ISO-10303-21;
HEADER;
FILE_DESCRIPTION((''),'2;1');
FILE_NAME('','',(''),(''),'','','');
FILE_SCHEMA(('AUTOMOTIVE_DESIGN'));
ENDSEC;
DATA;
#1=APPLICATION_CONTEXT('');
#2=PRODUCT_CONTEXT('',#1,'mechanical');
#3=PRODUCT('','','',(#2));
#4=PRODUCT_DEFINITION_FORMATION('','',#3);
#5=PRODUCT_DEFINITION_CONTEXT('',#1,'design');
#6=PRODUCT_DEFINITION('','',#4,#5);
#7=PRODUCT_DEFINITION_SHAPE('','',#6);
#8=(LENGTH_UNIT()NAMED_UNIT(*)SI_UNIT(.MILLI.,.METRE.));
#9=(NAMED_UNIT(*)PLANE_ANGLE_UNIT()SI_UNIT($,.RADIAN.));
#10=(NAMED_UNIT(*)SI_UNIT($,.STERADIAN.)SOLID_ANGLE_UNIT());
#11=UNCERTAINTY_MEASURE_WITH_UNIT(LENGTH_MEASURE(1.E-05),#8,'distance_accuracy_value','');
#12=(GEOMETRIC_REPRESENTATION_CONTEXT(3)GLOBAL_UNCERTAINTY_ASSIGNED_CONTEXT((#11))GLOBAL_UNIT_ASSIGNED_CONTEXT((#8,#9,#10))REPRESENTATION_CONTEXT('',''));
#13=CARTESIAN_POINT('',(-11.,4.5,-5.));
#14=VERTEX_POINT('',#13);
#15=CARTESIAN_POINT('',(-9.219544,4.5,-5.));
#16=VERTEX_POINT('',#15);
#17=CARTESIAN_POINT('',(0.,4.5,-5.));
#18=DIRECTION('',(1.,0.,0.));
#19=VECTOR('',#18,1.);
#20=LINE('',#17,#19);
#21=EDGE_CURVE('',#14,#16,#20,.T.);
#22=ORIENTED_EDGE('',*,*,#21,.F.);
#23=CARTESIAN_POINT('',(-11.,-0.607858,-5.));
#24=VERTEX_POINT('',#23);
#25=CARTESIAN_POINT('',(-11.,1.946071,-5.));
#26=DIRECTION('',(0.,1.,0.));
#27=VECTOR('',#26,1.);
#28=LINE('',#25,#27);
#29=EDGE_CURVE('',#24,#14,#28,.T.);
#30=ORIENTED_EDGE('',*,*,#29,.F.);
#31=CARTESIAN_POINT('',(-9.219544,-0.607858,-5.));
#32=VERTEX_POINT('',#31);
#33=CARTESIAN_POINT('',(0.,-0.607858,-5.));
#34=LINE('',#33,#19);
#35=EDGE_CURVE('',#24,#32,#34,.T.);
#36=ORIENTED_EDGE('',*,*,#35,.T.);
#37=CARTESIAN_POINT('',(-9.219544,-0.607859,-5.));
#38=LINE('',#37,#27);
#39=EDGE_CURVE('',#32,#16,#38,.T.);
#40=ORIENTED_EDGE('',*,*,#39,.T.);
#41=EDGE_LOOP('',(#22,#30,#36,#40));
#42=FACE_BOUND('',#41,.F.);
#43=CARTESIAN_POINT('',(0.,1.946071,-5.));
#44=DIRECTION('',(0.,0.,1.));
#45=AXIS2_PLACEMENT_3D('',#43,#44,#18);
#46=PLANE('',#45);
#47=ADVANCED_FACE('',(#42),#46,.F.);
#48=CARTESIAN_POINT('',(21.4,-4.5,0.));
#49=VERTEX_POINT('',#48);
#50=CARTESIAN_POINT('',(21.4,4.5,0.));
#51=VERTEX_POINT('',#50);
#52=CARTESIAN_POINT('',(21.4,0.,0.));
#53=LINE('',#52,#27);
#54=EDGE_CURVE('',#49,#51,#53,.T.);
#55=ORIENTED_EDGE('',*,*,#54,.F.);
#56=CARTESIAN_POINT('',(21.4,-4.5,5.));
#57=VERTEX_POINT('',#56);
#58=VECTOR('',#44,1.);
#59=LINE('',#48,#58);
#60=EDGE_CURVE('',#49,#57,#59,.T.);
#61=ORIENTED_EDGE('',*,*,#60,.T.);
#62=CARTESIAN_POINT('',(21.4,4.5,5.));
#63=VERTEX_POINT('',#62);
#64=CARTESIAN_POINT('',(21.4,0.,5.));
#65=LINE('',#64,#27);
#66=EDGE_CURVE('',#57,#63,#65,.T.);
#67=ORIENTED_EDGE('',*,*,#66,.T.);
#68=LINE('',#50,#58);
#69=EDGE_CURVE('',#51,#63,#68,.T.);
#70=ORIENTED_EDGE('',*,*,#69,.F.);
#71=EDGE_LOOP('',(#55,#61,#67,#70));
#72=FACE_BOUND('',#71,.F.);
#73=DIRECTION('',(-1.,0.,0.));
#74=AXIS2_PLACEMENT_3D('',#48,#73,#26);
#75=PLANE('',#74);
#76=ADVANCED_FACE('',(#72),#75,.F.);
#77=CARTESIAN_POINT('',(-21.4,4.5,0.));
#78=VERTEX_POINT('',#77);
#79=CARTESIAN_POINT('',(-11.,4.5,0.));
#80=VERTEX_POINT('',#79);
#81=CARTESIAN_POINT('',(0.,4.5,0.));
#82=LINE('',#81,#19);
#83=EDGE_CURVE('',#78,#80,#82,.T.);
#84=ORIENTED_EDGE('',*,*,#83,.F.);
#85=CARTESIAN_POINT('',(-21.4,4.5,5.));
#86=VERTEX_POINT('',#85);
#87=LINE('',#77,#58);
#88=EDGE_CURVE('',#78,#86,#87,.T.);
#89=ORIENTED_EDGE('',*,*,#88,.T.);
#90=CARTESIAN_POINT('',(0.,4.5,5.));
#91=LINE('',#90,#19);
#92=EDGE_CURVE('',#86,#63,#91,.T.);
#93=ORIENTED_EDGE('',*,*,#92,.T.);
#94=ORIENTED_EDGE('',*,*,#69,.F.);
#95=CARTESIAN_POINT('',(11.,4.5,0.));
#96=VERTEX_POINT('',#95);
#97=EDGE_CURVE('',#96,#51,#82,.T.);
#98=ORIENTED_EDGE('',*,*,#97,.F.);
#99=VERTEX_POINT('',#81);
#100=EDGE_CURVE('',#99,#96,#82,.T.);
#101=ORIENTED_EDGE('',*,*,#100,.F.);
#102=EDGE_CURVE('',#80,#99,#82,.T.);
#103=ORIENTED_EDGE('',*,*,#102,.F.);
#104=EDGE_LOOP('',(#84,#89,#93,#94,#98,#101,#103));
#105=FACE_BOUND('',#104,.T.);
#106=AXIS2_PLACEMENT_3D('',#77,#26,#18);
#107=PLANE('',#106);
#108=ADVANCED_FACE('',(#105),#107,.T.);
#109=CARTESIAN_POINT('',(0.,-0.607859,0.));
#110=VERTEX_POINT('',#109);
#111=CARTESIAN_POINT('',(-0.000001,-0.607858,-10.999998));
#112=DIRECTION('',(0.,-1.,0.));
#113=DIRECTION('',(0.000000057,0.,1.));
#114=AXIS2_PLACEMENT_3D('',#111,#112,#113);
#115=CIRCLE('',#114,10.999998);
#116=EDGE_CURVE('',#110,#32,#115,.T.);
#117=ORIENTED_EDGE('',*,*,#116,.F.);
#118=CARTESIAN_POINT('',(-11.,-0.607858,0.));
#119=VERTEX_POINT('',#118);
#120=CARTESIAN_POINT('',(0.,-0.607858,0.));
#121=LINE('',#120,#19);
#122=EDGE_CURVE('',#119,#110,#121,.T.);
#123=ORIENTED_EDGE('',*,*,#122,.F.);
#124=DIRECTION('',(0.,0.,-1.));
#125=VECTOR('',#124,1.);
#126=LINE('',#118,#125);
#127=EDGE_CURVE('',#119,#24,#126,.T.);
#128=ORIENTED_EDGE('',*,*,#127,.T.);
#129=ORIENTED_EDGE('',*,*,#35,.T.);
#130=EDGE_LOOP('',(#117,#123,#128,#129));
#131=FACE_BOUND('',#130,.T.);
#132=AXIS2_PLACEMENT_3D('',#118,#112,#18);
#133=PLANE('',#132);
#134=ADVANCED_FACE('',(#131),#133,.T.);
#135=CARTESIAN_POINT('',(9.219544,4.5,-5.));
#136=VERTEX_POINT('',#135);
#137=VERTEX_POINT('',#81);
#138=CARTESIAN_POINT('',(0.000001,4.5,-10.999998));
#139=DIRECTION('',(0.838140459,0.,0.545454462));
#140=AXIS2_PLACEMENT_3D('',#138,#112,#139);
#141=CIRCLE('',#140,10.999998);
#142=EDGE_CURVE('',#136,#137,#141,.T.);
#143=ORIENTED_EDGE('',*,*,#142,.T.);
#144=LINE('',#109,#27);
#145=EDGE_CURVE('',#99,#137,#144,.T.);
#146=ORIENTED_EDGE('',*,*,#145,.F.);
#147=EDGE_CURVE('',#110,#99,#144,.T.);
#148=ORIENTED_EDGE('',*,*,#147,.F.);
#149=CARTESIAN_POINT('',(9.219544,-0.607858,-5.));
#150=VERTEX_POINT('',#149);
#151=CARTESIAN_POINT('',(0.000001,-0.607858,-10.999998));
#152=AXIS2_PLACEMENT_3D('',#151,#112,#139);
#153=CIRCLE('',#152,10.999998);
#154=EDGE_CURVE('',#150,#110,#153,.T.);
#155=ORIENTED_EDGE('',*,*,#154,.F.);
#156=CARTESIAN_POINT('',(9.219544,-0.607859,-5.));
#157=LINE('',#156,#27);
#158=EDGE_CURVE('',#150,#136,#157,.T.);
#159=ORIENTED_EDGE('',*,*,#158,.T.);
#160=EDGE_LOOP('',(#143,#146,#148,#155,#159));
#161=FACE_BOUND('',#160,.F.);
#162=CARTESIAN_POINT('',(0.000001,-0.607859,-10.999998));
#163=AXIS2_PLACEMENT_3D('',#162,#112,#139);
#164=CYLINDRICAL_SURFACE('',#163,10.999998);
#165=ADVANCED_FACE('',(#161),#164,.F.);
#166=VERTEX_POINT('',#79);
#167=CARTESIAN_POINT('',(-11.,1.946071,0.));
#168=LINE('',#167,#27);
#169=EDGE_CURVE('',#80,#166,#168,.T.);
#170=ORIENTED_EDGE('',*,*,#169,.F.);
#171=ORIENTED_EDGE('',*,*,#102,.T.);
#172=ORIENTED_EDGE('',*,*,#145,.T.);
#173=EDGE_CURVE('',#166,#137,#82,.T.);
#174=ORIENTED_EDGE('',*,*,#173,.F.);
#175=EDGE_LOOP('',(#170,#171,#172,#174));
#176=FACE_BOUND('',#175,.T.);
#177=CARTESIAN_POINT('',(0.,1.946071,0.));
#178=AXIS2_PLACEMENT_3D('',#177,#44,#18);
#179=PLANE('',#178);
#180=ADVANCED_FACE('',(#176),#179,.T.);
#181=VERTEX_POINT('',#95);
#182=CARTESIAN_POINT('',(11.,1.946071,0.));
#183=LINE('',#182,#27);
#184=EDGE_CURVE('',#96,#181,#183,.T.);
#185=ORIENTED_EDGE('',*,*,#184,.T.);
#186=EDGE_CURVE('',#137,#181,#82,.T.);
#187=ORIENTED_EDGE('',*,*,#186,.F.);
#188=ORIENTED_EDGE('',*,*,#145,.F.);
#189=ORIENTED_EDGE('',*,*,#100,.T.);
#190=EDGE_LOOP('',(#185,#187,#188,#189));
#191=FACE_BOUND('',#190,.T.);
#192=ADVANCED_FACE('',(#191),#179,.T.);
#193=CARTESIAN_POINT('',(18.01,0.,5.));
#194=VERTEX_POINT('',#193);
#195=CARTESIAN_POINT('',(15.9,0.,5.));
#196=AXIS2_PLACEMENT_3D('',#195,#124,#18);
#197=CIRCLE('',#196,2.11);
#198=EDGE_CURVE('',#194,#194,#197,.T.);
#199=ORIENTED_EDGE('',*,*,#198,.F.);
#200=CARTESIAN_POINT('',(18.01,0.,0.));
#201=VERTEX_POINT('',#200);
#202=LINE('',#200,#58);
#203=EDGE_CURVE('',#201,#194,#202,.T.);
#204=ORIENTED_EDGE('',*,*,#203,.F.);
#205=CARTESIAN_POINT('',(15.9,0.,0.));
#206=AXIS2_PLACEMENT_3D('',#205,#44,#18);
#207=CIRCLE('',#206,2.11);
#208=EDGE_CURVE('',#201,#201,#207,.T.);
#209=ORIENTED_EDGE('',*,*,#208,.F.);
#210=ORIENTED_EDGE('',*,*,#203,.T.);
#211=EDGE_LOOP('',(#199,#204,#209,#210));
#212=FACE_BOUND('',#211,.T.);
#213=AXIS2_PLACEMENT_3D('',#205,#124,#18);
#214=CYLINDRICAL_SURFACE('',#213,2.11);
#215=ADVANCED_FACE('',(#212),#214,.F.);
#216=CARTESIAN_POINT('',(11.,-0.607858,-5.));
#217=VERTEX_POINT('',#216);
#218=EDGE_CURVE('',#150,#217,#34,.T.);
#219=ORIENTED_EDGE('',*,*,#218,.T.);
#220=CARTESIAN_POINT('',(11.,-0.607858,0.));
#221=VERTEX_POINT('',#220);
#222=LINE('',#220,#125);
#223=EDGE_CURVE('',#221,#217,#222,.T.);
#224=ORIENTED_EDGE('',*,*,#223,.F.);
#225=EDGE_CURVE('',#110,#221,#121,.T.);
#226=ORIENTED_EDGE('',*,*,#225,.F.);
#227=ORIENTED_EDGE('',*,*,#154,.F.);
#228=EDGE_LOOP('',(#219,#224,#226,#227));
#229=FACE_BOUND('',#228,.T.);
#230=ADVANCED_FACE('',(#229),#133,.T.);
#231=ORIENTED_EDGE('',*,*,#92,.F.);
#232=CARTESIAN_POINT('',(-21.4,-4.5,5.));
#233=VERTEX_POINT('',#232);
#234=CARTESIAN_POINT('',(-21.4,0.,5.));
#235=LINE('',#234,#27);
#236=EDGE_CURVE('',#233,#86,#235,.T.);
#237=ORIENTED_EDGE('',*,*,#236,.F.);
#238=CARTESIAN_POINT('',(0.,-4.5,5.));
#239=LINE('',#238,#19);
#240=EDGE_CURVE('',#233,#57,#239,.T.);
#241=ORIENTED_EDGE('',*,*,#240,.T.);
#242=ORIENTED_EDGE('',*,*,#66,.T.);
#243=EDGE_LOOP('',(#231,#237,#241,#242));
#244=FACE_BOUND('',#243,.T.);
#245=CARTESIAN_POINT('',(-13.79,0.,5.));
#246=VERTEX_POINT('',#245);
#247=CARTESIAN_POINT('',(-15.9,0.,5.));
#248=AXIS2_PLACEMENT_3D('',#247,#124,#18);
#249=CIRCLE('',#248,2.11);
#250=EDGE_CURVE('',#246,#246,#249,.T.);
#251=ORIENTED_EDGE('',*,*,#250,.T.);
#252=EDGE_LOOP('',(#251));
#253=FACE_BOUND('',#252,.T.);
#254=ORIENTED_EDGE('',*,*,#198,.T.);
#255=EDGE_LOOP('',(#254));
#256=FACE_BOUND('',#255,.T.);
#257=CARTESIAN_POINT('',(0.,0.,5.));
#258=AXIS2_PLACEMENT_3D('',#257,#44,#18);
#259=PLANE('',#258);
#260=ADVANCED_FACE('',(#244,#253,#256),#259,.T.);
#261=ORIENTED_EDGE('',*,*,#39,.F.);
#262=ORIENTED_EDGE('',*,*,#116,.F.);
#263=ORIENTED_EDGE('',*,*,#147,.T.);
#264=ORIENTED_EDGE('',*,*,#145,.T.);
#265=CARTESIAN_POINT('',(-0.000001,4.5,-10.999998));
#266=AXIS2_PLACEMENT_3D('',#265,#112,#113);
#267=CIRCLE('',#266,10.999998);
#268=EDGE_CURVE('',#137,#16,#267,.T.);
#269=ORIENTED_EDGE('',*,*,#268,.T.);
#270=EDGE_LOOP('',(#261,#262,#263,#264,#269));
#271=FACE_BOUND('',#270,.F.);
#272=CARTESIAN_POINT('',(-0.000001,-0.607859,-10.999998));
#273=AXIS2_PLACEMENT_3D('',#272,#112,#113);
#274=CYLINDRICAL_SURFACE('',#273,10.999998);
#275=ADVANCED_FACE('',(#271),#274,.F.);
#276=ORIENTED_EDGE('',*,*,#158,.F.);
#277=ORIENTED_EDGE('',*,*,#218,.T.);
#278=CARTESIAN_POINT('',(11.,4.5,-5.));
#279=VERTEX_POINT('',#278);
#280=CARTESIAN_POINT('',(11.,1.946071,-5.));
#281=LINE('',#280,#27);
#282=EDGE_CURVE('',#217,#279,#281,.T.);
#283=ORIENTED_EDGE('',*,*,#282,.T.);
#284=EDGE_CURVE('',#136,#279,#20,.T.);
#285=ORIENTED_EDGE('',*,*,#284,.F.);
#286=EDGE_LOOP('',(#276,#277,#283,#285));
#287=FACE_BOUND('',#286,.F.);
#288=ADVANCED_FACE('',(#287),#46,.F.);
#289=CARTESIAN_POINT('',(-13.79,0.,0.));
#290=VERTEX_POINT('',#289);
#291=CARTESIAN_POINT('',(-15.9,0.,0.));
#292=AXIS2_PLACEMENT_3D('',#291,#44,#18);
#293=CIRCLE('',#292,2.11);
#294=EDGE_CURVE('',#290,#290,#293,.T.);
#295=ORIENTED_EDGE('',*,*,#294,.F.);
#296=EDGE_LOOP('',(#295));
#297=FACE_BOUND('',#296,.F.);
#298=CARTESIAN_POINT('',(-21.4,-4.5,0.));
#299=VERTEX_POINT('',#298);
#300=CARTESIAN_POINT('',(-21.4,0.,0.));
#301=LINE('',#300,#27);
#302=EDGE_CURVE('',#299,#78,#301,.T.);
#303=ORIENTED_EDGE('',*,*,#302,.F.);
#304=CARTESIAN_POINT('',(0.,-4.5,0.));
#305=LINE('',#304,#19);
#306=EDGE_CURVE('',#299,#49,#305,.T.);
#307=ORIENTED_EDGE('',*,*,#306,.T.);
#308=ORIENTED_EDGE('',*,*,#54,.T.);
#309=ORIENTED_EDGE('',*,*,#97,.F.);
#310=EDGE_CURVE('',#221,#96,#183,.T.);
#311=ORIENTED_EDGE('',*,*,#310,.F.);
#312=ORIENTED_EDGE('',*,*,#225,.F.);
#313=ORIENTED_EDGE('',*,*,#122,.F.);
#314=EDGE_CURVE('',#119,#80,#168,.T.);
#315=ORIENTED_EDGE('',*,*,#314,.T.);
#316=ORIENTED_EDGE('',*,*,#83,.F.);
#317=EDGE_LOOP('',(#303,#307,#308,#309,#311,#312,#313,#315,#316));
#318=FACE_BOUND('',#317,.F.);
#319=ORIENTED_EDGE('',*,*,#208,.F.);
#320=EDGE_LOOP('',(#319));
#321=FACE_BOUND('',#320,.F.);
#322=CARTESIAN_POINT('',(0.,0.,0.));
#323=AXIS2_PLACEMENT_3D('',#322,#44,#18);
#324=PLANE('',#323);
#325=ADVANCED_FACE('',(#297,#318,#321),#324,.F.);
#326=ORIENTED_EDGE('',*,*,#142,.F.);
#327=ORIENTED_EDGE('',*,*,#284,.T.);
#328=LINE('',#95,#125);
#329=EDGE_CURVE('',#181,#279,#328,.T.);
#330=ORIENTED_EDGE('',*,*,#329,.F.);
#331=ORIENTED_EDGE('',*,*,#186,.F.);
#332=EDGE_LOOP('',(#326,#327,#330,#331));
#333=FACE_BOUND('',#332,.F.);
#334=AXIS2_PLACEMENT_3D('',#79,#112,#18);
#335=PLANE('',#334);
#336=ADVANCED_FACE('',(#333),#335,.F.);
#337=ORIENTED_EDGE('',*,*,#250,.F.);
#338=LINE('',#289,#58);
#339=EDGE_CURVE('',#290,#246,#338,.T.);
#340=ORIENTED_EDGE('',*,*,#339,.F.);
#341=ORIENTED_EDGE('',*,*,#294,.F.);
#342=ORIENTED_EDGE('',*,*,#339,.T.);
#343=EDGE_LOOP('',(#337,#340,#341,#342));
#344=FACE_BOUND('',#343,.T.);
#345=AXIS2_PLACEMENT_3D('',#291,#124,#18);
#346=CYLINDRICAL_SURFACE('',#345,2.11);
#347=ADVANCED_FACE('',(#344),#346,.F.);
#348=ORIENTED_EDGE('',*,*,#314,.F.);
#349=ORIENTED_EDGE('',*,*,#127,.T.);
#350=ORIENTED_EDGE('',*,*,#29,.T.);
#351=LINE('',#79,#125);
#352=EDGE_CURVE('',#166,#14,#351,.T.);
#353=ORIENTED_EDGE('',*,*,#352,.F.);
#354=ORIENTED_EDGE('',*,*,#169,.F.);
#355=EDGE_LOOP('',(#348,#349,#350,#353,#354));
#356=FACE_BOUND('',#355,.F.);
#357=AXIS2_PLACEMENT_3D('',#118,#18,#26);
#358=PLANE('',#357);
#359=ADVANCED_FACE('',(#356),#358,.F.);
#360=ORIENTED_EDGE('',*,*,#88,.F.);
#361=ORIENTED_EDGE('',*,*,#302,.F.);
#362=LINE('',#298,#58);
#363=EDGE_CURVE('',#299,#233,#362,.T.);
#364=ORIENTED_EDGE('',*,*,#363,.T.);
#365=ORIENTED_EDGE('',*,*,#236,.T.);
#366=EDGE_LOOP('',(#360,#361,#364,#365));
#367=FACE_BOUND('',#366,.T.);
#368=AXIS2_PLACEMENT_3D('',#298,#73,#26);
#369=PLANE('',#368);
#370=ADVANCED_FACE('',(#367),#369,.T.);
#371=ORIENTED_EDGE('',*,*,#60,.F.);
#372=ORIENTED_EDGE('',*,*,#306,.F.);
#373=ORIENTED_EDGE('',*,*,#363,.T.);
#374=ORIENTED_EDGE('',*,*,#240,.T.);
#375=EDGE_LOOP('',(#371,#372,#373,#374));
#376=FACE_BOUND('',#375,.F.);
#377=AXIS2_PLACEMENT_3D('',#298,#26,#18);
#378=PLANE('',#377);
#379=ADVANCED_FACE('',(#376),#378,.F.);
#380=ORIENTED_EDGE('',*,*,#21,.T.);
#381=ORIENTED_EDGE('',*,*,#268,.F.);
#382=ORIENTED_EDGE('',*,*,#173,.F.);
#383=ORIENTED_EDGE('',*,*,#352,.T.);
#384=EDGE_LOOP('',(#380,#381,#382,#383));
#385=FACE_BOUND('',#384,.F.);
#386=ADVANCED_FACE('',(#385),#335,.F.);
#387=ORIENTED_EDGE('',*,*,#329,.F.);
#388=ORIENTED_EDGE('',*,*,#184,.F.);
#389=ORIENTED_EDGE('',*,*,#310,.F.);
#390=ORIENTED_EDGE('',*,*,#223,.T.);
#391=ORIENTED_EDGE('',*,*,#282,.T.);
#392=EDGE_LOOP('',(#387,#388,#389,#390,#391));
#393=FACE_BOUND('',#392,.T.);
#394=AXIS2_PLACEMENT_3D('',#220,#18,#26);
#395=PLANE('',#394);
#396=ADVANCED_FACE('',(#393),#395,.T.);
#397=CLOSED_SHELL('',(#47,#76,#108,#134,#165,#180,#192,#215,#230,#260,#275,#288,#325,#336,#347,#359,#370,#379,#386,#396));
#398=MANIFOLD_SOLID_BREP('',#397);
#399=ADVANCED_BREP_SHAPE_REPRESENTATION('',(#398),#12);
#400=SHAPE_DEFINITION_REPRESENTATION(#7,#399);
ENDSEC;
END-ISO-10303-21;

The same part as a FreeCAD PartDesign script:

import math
import FreeCAD as App
import Part
import Sketcher
from FreeCAD import Vector
Q = App.Units.Quantity

doc = App.newDocument("Part")
params = doc.addObject("Spreadsheet::Sheet", "Params")
for row, (alias, value) in enumerate([
    ("sketch1_height", "9 mm"),
    ("sketch1_width", "42.8 mm"),
    ("pad1_length", "5 mm"),
    ("sketch2_diameter", "4.22 mm"),
    ("pocket1_length", "7 mm"),
    ("sketch3_width", "22 mm"),
    ("pad2_length", "5 mm"),
    ("pocket2_length", "7.1 mm"),
], start=1):
    params.set(f"A{row}", alias)
    params.set(f"B{row}", "=" + value)
    params.setAlias(f"B{row}", alias)

body = doc.addObject("PartDesign::Body", "Body")

sketch1 = body.newObject("Sketcher::SketchObject", "Sketch")
sketch1.AttachmentSupport = (doc.getObject("XY_Plane"), [""])
sketch1.MapMode = "FlatFace"
sketch1.addGeometry([
    Part.LineSegment(Vector(-21.4, 4.5, 0), Vector(-21.4, -4.5, 0)),
    Part.LineSegment(Vector(-21.4, -4.5, 0), Vector(21.4, -4.5, 0)),
    Part.LineSegment(Vector(21.4, -4.5, 0), Vector(21.4, 4.5, 0)),
    Part.LineSegment(Vector(21.4, 4.5, 0), Vector(-21.4, 4.5, 0)),
], False)
sketch1.addConstraint([
    Sketcher.Constraint("Coincident", 0, 2, 1, 1),
    Sketcher.Constraint("Coincident", 1, 2, 2, 1),
    Sketcher.Constraint("Coincident", 2, 2, 3, 1),
    Sketcher.Constraint("Coincident", 3, 2, 0, 1),
    Sketcher.Constraint("Vertical", 0),
    Sketcher.Constraint("Horizontal", 1),
    Sketcher.Constraint("Vertical", 2),
    Sketcher.Constraint("Horizontal", 3),
    Sketcher.Constraint("Symmetric", 0, 2, 2, 2, -1, 1),
    Sketcher.Constraint("DistanceY", 0, 2, 0, 1, Q("9 mm")),
    Sketcher.Constraint("DistanceX", 1, 1, 1, 2, Q("42.8 mm")),
])
sketch1.setExpression("Constraints[9]", "Params.sketch1_height")
sketch1.setExpression("Constraints[10]", "Params.sketch1_width")
pad1 = body.newObject("PartDesign::Pad", "Pad")
pad1.Profile = sketch1
pad1.setExpression("Length", "Params.pad1_length")

sketch2 = body.newObject("Sketcher::SketchObject", "Sketch001")
sketch2.AttachmentSupport = (doc.getObject("XY_Plane"), [""])
sketch2.MapMode = "FlatFace"
sketch2.addGeometry([
    Part.Circle(Vector(-15.9, 0, 0), Vector(0, 0, 1), 2.11),
    Part.Circle(Vector(15.9, 0, 0), Vector(0, 0, 1), 2.11),
], False)
sketch2.addConstraint([
    Sketcher.Constraint("Equal", 0, 1),
    Sketcher.Constraint("Symmetric", 0, 3, 1, 3, -1, 1),
    Sketcher.Constraint("PointOnObject", 0, 3, -1),
    Sketcher.Constraint("Diameter", 0, Q("4.22 mm")),
    Sketcher.Constraint("DistanceX", 0, 3, -1, 1, Q("15.9 mm")),
])
sketch2.setExpression("Constraints[3]", "Params.sketch2_diameter")
pocket1 = body.newObject("PartDesign::Pocket", "Pocket")
pocket1.Profile = sketch2
pocket1.setExpression("Length", "Params.pocket1_length")
pocket1.Reversed = True

sketch3 = body.newObject("Sketcher::SketchObject", "Sketch002")
sketch3.AttachmentSupport = (doc.getObject("XY_Plane"), [""])
sketch3.MapMode = "FlatFace"
sketch3.addGeometry([
    Part.LineSegment(Vector(-11, 4.5, 0), Vector(-11, -0.607858, 0)),
    Part.LineSegment(Vector(-11, -0.607858, 0), Vector(11, -0.607858, 0)),
    Part.LineSegment(Vector(11, -0.607858, 0), Vector(11, 4.5, 0)),
    Part.LineSegment(Vector(11, 4.5, 0), Vector(-11, 4.5, 0)),
], False)
sketch3.addConstraint([
    Sketcher.Constraint("Coincident", 0, 2, 1, 1),
    Sketcher.Constraint("Coincident", 1, 2, 2, 1),
    Sketcher.Constraint("Coincident", 2, 2, 3, 1),
    Sketcher.Constraint("Coincident", 3, 2, 0, 1),
    Sketcher.Constraint("Vertical", 0),
    Sketcher.Constraint("Horizontal", 1),
    Sketcher.Constraint("Vertical", 2),
    Sketcher.Constraint("Horizontal", 3),
    Sketcher.Constraint("DistanceX", 1, 1, 1, 2, Q("22 mm")),
    Sketcher.Constraint("DistanceX", 0, 2, -1, 1, Q("11 mm")),
    Sketcher.Constraint("DistanceY", -1, 1, 2, 2, Q("4.5 mm")),
    Sketcher.Constraint("DistanceY", 0, 2, 0, 1, Q("5.107859 mm")),
])
sketch3.setExpression("Constraints[8]", "Params.sketch3_width")
pad2 = body.newObject("PartDesign::Pad", "Pad001")
pad2.Profile = sketch3
pad2.setExpression("Length", "Params.pad2_length")
pad2.Reversed = True

sketch4 = body.newObject("Sketcher::SketchObject", "Sketch003")
sketch4.AttachmentSupport = (doc.getObject("XZ_Plane"), [""])
sketch4.MapMode = "FlatFace"
sketch4.AttachmentOffset = App.Placement(Vector(0, 0, 0.607859), App.Rotation())
sketch4.addGeometry([
    Part.LineSegment(Vector(-9.219544, -5, 0), Vector(9.219544, -5, 0)),
    Part.ArcOfCircle(Part.Circle(Vector(0.000001, -10.999998, 0), Vector(0, 0, 1), 10.999998), math.radians(33.055725), math.radians(90.000003)),
    Part.ArcOfCircle(Part.Circle(Vector(-0.000001, -10.999998, 0), Vector(0, 0, 1), 10.999998), math.radians(89.999997), math.radians(146.944275)),
], False)
sketch4.addConstraint([
    Sketcher.Constraint("Coincident", 0, 2, 1, 1),
    Sketcher.Constraint("Tangent", 1, 2, 2, 1),
    Sketcher.Constraint("Coincident", 2, 2, 0, 1),
    Sketcher.Constraint("Horizontal", 0),
    Sketcher.Constraint("Coincident", 1, 2, -1, 1),
    Sketcher.Constraint("Equal", 1, 2),
    Sketcher.Constraint("PointOnObject", 1, 3, -2),
    Sketcher.Constraint("DistanceY", 0, 2, -1, 1, Q("5 mm")),
    Sketcher.Constraint("Radius", 1, Q("10.999998 mm")),
])
pocket2 = body.newObject("PartDesign::Pocket", "Pocket001")
pocket2.Profile = sketch4
pocket2.setExpression("Length", "Params.pocket2_length")

doc.recompute()
